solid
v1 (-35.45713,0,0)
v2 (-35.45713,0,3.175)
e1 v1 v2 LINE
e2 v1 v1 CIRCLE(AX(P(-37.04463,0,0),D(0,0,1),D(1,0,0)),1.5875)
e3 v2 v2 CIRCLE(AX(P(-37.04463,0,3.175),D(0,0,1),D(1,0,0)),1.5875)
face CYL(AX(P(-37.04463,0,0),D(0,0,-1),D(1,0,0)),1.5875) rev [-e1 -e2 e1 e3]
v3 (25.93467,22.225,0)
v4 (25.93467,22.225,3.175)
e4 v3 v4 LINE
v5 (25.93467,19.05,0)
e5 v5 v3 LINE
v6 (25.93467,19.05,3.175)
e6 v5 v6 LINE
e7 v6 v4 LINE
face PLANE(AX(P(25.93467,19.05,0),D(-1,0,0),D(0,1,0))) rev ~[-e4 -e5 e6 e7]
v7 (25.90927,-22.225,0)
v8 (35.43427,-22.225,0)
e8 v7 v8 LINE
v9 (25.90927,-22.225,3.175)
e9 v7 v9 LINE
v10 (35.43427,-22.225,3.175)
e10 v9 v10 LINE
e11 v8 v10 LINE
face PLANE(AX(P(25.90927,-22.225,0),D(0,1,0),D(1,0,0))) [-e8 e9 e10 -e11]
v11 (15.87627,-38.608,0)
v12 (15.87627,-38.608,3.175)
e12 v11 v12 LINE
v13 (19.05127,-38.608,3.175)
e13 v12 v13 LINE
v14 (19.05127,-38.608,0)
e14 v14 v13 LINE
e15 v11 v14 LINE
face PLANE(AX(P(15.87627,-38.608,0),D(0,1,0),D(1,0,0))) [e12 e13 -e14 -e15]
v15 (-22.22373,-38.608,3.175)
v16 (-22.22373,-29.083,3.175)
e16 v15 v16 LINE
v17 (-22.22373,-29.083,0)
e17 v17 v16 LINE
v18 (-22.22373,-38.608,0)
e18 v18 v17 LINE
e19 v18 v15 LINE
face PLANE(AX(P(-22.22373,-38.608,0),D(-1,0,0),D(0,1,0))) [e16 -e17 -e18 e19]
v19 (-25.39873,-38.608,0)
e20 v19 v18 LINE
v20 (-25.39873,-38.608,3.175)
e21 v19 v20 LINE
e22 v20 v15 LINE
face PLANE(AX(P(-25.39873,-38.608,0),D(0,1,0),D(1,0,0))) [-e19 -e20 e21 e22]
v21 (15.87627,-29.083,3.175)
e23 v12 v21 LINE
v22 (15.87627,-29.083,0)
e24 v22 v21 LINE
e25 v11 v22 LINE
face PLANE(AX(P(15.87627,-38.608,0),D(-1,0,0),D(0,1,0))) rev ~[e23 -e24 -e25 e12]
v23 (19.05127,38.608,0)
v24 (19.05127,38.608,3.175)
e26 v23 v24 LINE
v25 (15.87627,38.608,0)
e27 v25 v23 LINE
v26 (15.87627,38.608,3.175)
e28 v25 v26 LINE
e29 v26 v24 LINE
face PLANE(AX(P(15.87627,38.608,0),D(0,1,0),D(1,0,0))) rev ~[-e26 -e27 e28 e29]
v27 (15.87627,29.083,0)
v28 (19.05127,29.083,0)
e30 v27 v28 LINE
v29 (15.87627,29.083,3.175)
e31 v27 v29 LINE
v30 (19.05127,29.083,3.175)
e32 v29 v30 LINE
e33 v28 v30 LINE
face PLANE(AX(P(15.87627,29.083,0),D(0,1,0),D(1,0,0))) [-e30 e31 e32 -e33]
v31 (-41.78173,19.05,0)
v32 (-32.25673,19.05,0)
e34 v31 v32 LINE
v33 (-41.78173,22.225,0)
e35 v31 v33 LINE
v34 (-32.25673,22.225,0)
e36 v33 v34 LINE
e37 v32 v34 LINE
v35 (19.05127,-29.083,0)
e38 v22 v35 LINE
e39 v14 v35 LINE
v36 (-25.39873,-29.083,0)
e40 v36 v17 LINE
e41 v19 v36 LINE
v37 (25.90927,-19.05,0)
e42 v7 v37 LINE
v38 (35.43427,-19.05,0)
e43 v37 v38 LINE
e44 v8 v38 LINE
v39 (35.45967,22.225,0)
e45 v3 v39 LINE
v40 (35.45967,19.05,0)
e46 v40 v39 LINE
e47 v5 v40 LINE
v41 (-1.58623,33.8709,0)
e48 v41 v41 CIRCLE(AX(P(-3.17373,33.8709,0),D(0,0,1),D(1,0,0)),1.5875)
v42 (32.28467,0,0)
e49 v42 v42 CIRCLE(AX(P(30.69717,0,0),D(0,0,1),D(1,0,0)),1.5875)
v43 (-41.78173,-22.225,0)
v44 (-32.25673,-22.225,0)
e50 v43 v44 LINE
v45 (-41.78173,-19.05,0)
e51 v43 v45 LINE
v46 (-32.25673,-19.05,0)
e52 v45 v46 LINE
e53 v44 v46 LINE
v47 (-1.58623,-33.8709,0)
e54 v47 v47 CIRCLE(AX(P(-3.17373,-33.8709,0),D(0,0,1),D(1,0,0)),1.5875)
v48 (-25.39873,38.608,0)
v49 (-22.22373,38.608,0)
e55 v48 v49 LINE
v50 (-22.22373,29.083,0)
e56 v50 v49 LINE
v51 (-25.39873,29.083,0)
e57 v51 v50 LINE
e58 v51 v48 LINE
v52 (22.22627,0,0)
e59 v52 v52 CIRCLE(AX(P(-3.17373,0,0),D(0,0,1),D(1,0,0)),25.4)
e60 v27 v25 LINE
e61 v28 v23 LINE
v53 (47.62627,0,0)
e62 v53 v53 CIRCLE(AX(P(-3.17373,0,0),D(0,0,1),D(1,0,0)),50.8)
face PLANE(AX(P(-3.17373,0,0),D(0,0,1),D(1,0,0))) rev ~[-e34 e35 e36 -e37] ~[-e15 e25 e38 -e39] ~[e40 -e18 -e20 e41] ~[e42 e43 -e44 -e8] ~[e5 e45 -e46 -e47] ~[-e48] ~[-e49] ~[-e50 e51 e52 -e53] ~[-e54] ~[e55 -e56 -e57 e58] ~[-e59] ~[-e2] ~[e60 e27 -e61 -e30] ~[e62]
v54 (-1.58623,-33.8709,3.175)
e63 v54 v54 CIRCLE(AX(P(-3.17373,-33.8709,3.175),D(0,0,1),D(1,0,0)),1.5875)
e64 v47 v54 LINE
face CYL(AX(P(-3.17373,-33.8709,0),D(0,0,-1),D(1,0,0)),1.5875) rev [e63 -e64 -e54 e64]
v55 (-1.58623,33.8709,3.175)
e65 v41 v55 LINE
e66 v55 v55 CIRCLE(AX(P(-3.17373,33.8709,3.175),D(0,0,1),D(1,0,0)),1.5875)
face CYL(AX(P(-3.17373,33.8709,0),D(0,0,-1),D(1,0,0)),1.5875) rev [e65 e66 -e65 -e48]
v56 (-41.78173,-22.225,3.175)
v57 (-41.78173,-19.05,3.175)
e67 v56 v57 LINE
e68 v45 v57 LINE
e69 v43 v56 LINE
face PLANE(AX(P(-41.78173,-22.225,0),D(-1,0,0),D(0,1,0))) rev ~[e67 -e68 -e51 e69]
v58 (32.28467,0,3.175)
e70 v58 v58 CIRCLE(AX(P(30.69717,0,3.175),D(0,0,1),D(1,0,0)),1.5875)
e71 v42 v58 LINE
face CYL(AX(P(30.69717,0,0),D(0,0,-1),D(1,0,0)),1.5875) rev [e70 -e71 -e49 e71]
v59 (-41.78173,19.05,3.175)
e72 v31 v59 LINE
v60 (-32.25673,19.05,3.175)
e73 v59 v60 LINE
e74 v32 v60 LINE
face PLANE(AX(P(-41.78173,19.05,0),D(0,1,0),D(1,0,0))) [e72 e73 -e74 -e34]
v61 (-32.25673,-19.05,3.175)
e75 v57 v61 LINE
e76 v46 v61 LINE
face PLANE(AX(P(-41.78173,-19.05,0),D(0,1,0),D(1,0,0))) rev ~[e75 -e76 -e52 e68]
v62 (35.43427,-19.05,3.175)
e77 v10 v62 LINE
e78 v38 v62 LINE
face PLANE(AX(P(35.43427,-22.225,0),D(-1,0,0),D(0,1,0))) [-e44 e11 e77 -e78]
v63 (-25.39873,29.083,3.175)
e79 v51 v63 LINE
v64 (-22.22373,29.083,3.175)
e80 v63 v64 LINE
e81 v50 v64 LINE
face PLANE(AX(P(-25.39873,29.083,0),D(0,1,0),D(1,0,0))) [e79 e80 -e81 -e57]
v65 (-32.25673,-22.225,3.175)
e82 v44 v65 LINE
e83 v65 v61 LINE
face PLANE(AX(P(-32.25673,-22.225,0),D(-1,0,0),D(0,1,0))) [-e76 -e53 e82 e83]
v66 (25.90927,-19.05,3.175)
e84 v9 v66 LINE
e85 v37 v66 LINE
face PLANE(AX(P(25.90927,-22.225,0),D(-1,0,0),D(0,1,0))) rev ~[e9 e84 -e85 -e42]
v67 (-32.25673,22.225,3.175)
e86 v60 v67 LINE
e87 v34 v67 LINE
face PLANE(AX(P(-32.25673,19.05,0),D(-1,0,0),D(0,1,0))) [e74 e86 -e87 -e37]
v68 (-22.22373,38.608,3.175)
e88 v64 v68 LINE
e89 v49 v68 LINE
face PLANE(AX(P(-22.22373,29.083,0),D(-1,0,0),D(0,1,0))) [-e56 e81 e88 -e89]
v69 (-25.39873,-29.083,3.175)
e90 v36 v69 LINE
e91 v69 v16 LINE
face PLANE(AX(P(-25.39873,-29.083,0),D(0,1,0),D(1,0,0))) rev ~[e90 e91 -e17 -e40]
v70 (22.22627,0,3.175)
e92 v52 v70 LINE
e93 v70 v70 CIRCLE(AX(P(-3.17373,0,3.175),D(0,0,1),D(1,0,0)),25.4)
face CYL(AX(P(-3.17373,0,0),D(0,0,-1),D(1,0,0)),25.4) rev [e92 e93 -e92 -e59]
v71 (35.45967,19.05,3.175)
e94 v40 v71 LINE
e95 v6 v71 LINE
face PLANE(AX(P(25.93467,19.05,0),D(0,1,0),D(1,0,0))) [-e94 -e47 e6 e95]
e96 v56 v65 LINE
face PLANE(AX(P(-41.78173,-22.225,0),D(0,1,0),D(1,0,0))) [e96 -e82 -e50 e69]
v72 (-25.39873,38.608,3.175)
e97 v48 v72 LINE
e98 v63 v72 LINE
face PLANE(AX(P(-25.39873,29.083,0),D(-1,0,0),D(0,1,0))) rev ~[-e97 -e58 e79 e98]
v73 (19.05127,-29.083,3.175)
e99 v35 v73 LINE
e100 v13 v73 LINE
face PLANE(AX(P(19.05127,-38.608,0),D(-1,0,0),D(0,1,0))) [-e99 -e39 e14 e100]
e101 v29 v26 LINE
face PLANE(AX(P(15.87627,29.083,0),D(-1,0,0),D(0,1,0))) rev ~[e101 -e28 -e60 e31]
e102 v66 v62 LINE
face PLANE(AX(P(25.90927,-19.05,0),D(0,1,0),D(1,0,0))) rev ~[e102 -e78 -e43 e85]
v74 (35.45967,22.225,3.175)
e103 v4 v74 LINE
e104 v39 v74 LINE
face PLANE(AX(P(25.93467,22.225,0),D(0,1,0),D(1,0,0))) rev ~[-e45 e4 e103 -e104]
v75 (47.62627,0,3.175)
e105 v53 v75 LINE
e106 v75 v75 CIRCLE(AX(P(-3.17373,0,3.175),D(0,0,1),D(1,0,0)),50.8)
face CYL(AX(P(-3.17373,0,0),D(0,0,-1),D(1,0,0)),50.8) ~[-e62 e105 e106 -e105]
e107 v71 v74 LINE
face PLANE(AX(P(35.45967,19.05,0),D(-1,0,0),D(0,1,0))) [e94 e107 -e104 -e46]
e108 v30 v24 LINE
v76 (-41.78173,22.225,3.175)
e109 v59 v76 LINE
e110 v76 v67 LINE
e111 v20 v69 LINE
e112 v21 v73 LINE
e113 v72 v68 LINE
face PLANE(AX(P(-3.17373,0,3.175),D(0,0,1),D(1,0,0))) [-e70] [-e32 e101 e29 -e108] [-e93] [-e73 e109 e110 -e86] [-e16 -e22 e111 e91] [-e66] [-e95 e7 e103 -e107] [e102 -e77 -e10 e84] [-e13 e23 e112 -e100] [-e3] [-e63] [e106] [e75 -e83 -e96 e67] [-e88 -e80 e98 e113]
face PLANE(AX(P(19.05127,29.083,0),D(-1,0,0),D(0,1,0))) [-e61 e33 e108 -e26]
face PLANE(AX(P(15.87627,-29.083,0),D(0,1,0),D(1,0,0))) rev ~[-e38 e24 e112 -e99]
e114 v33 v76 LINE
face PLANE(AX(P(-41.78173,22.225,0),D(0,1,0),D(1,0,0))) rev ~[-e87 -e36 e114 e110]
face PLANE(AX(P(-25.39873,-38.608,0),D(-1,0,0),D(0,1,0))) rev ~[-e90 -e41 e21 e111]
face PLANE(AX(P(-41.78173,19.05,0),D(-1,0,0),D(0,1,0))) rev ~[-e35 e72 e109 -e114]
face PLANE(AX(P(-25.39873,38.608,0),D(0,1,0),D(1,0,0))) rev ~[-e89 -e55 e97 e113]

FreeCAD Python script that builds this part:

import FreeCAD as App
import Part
import Sketcher
Q = App.Units.Quantity

doc = App.newDocument("Part")
body = doc.addObject("PartDesign::Body", "Body")

sketch1 = doc.addObject("Sketcher::SketchObject", "Sketch")
body.addObject(sketch1)
sketch1.AttachmentSupport = (doc.XY_Plane, [""])
sketch1.MapMode = "FlatFace"
sketch1.addGeometry(Part.Circle(App.Vector(-3.2, 0, 0), App.Vector(0, 0, 1), 50.8), False)
sketch1.addGeometry(Part.LineSegment(App.Vector(-22.2, -38.6, 0), App.Vector(-25.4, -38.6, 0)), False)
sketch1.addGeometry(Part.LineSegment(App.Vector(-25.4, -38.6, 0), App.Vector(-25.4, -29.1, 0)), False)
sketch1.addGeometry(Part.LineSegment(App.Vector(-25.4, -29.1, 0), App.Vector(-22.2, -29.1, 0)), False)
sketch1.addGeometry(Part.LineSegment(App.Vector(-22.2, -29.1, 0), App.Vector(-22.2, -38.6, 0)), False)
sketch1.addGeometry(Part.LineSegment(App.Vector(-32.3, -22.2, 0), App.Vector(-41.8, -22.2, 0)), False)
sketch1.addGeometry(Part.LineSegment(App.Vector(-41.8, -22.2, 0), App.Vector(-41.8, -19.1, 0)), False)
sketch1.addGeometry(Part.LineSegment(App.Vector(-41.8, -19.1, 0), App.Vector(-32.3, -19.1, 0)), False)
sketch1.addGeometry(Part.LineSegment(App.Vector(-32.3, -19.1, 0), App.Vector(-32.3, -22.2, 0)), False)
sketch1.addGeometry(Part.Circle(App.Vector(-3.2, -33.9, 0), App.Vector(0, 0, 1), 1.6), False)
sketch1.addGeometry(Part.LineSegment(App.Vector(19.1, -38.6, 0), App.Vector(15.9, -38.6, 0)), False)
sketch1.addGeometry(Part.LineSegment(App.Vector(15.9, -38.6, 0), App.Vector(15.9, -29.1, 0)), False)
sketch1.addGeometry(Part.LineSegment(App.Vector(15.9, -29.1, 0), App.Vector(19.1, -29.1, 0)), False)
sketch1.addGeometry(Part.LineSegment(App.Vector(19.1, -29.1, 0), App.Vector(19.1, -38.6, 0)), False)
sketch1.addGeometry(Part.LineSegment(App.Vector(35.4, -22.2, 0), App.Vector(25.9, -22.2, 0)), False)
sketch1.addGeometry(Part.LineSegment(App.Vector(25.9, -22.2, 0), App.Vector(25.9, -19.1, 0)), False)
sketch1.addGeometry(Part.LineSegment(App.Vector(25.9, -19.1, 0), App.Vector(35.4, -19.1, 0)), False)
sketch1.addGeometry(Part.LineSegment(App.Vector(35.4, -19.1, 0), App.Vector(35.4, -22.2, 0)), False)
sketch1.addGeometry(Part.Circle(App.Vector(-37, 0, 0), App.Vector(0, 0, 1), 1.6), False)
sketch1.addGeometry(Part.Circle(App.Vector(-3.2, 0, 0), App.Vector(0, 0, 1), 25.4), False)
sketch1.addGeometry(Part.LineSegment(App.Vector(-32.3, 19.1, 0), App.Vector(-41.8, 19.1, 0)), False)
sketch1.addGeometry(Part.LineSegment(App.Vector(-41.8, 19.1, 0), App.Vector(-41.8, 22.2, 0)), False)
sketch1.addGeometry(Part.LineSegment(App.Vector(-41.8, 22.2, 0), App.Vector(-32.3, 22.2, 0)), False)
sketch1.addGeometry(Part.LineSegment(App.Vector(-32.3, 22.2, 0), App.Vector(-32.3, 19.1, 0)), False)
sketch1.addGeometry(Part.LineSegment(App.Vector(-22.2, 29.1, 0), App.Vector(-25.4, 29.1, 0)), False)
sketch1.addGeometry(Part.LineSegment(App.Vector(-25.4, 29.1, 0), App.Vector(-25.4, 38.6, 0)), False)
sketch1.addGeometry(Part.LineSegment(App.Vector(-25.4, 38.6, 0), App.Vector(-22.2, 38.6, 0)), False)
sketch1.addGeometry(Part.LineSegment(App.Vector(-22.2, 38.6, 0), App.Vector(-22.2, 29.1, 0)), False)
sketch1.addGeometry(Part.Circle(App.Vector(-3.2, 33.9, 0), App.Vector(0, 0, 1), 1.6), False)
sketch1.addGeometry(Part.Circle(App.Vector(30.7, 0, 0), App.Vector(0, 0, 1), 1.6), False)
sketch1.addGeometry(Part.LineSegment(App.Vector(35.5, 19.1, 0), App.Vector(25.9, 19.1, 0)), False)
sketch1.addGeometry(Part.LineSegment(App.Vector(25.9, 19.1, 0), App.Vector(25.9, 22.2, 0)), False)
sketch1.addGeometry(Part.LineSegment(App.Vector(25.9, 22.2, 0), App.Vector(35.5, 22.2, 0)), False)
sketch1.addGeometry(Part.LineSegment(App.Vector(35.5, 22.2, 0), App.Vector(35.5, 19.1, 0)), False)
sketch1.addGeometry(Part.LineSegment(App.Vector(19.1, 29.1, 0), App.Vector(15.9, 29.1, 0)), False)
sketch1.addGeometry(Part.LineSegment(App.Vector(15.9, 29.1, 0), App.Vector(15.9, 38.6, 0)), False)
sketch1.addGeometry(Part.LineSegment(App.Vector(15.9, 38.6, 0), App.Vector(19.1, 38.6, 0)), False)
sketch1.addGeometry(Part.LineSegment(App.Vector(19.1, 38.6, 0), App.Vector(19.1, 29.1, 0)), False)
sketch1.addConstraint(Sketcher.Constraint("Coincident", 1, 2, 2, 1))
sketch1.addConstraint(Sketcher.Constraint("Coincident", 2, 2, 3, 1))
sketch1.addConstraint(Sketcher.Constraint("Coincident", 3, 2, 4, 1))
sketch1.addConstraint(Sketcher.Constraint("Coincident", 4, 2, 1, 1))
sketch1.addConstraint(Sketcher.Constraint("Coincident", 5, 2, 6, 1))
sketch1.addConstraint(Sketcher.Constraint("Coincident", 6, 2, 7, 1))
sketch1.addConstraint(Sketcher.Constraint("Coincident", 7, 2, 8, 1))
sketch1.addConstraint(Sketcher.Constraint("Coincident", 8, 2, 5, 1))
sketch1.addConstraint(Sketcher.Constraint("Coincident", 10, 2, 11, 1))
sketch1.addConstraint(Sketcher.Constraint("Coincident", 11, 2, 12, 1))
sketch1.addConstraint(Sketcher.Constraint("Coincident", 12, 2, 13, 1))
sketch1.addConstraint(Sketcher.Constraint("Coincident", 13, 2, 10, 1))
sketch1.addConstraint(Sketcher.Constraint("Coincident", 14, 2, 15, 1))
sketch1.addConstraint(Sketcher.Constraint("Coincident", 15, 2, 16, 1))
sketch1.addConstraint(Sketcher.Constraint("Coincident", 16, 2, 17, 1))
sketch1.addConstraint(Sketcher.Constraint("Coincident", 17, 2, 14, 1))
sketch1.addConstraint(Sketcher.Constraint("Coincident", 20, 2, 21, 1))
sketch1.addConstraint(Sketcher.Constraint("Coincident", 21, 2, 22, 1))
sketch1.addConstraint(Sketcher.Constraint("Coincident", 22, 2, 23, 1))
sketch1.addConstraint(Sketcher.Constraint("Coincident", 23, 2, 20, 1))
sketch1.addConstraint(Sketcher.Constraint("Coincident", 24, 2, 25, 1))
sketch1.addConstraint(Sketcher.Constraint("Coincident", 25, 2, 26, 1))
sketch1.addConstraint(Sketcher.Constraint("Coincident", 26, 2, 27, 1))
sketch1.addConstraint(Sketcher.Constraint("Coincident", 27, 2, 24, 1))
sketch1.addConstraint(Sketcher.Constraint("Coincident", 30, 2, 31, 1))
sketch1.addConstraint(Sketcher.Constraint("Coincident", 31, 2, 32, 1))
sketch1.addConstraint(Sketcher.Constraint("Coincident", 32, 2, 33, 1))
sketch1.addConstraint(Sketcher.Constraint("Coincident", 33, 2, 30, 1))
sketch1.addConstraint(Sketcher.Constraint("Coincident", 34, 2, 35, 1))
sketch1.addConstraint(Sketcher.Constraint("Coincident", 35, 2, 36, 1))
sketch1.addConstraint(Sketcher.Constraint("Coincident", 36, 2, 37, 1))
sketch1.addConstraint(Sketcher.Constraint("Coincident", 37, 2, 34, 1))
sketch1.addConstraint(Sketcher.Constraint("Horizontal", 1))
sketch1.addConstraint(Sketcher.Constraint("Vertical", 2))
sketch1.addConstraint(Sketcher.Constraint("Horizontal", 3))
sketch1.addConstraint(Sketcher.Constraint("Vertical", 4))
sketch1.addConstraint(Sketcher.Constraint("Horizontal", 5))
sketch1.addConstraint(Sketcher.Constraint("Vertical", 6))
sketch1.addConstraint(Sketcher.Constraint("Horizontal", 7))
sketch1.addConstraint(Sketcher.Constraint("Vertical", 8))
sketch1.addConstraint(Sketcher.Constraint("Horizontal", 10))
sketch1.addConstraint(Sketcher.Constraint("Vertical", 11))
sketch1.addConstraint(Sketcher.Constraint("Horizontal", 12))
sketch1.addConstraint(Sketcher.Constraint("Vertical", 13))
sketch1.addConstraint(Sketcher.Constraint("Horizontal", 14))
sketch1.addConstraint(Sketcher.Constraint("Vertical", 15))
sketch1.addConstraint(Sketcher.Constraint("Horizontal", 16))
sketch1.addConstraint(Sketcher.Constraint("Vertical", 17))
sketch1.addConstraint(Sketcher.Constraint("Horizontal", 20))
sketch1.addConstraint(Sketcher.Constraint("Vertical", 21))
sketch1.addConstraint(Sketcher.Constraint("Horizontal", 22))
sketch1.addConstraint(Sketcher.Constraint("Vertical", 23))
sketch1.addConstraint(Sketcher.Constraint("Horizontal", 24))
sketch1.addConstraint(Sketcher.Constraint("Vertical", 25))
sketch1.addConstraint(Sketcher.Constraint("Horizontal", 26))
sketch1.addConstraint(Sketcher.Constraint("Vertical", 27))
sketch1.addConstraint(Sketcher.Constraint("Horizontal", 30))
sketch1.addConstraint(Sketcher.Constraint("Vertical", 31))
sketch1.addConstraint(Sketcher.Constraint("Horizontal", 32))
sketch1.addConstraint(Sketcher.Constraint("Vertical", 33))
sketch1.addConstraint(Sketcher.Constraint("Horizontal", 34))
sketch1.addConstraint(Sketcher.Constraint("Vertical", 35))
sketch1.addConstraint(Sketcher.Constraint("Horizontal", 36))
sketch1.addConstraint(Sketcher.Constraint("Vertical", 37))
sketch1.addConstraint(Sketcher.Constraint("Coincident", 19, 3, 0, 3))
sketch1.addConstraint(Sketcher.Constraint("Equal", 9, 18))
sketch1.addConstraint(Sketcher.Constraint("Equal", 18, 28))
sketch1.addConstraint(Sketcher.Constraint("Equal", 28, 29))
sketch1.addConstraint(Sketcher.Constraint("Symmetric", 9, 3, 28, 3, -1))
sketch1.addConstraint(Sketcher.Constraint("Symmetric", 6, 2, 20, 2, -1))
sketch1.addConstraint(Sketcher.Constraint("Symmetric", 8, 2, 22, 2, -1))
sketch1.addConstraint(Sketcher.Constraint("Symmetric", 2, 2, 24, 2, -1))
sketch1.addConstraint(Sketcher.Constraint("Symmetric", 4, 2, 26, 2, -1))
sketch1.addConstraint(Sketcher.Constraint("Symmetric", 11, 2, 34, 2, -1))
sketch1.addConstraint(Sketcher.Constraint("Symmetric", 13, 2, 36, 2, -1))
sketch1.addConstraint(Sketcher.Constraint("PointOnObject", 0, 3, -1))
sketch1.addConstraint(Sketcher.Constraint("PointOnObject", 18, 3, -1))
sketch1.addConstraint(Sketcher.Constraint("PointOnObject", 29, 3, -1))
sketch1.addConstraint(Sketcher.Constraint("Horizontal", 4, 2, 10, 2))
sketch1.addConstraint(Sketcher.Constraint("Horizontal", 3, 2, 11, 2))
sketch1.addConstraint(Sketcher.Constraint("Horizontal", 8, 2, 14, 2))
sketch1.addConstraint(Sketcher.Constraint("Horizontal", 7, 2, 15, 2))
sketch1.addConstraint(Sketcher.Constraint("Horizontal", 23, 2, 30, 2))
sketch1.addConstraint(Sketcher.Constraint("Horizontal", 22, 2, 31, 2))
sketch1.addConstraint(Sketcher.Constraint("Vertical", 0, 3, 9, 3))
sketch1.addConstraint(Sketcher.Constraint("Equal", 3, 10))
sketch1.addConstraint(Sketcher.Constraint("Equal", 7, 14))
sketch1.addConstraint(Sketcher.Constraint("Equal", 22, 30))
sketch1.addConstraint(Sketcher.Constraint("Equal", 32, 2))
sketch1.addConstraint(Sketcher.Constraint("Equal", 36, 6))
sketch1.addConstraint(Sketcher.Constraint("Diameter", 0, Q("4 in")))
sketch1.addConstraint(Sketcher.Constraint("Diameter", 19, Q("2 in")))
sketch1.addConstraint(Sketcher.Constraint("Diameter", 9, Q("0.125 in")))
sketch1.addConstraint(Sketcher.Constraint("DistanceX", 4, 2, 10, 2, Q("1.5 in")))
sketch1.addConstraint(Sketcher.Constraint("DistanceY", 6, 2, 20, 2, Q("1.5 in")))
sketch1.addConstraint(Sketcher.Constraint("DistanceX", 1, 2, 1, 1, Q("0.125 in")))
sketch1.addConstraint(Sketcher.Constraint("DistanceX", 5, 2, 5, 1, Q("0.375 in")))
sketch1.addConstraint(Sketcher.Constraint("DistanceY", 1, 2, -1, 1, Q("1.52 in")))
sketch1.addConstraint(Sketcher.Constraint("DistanceX", 3, 2, 9, 3, Q("0.75 in")))
sketch1.addConstraint(Sketcher.Constraint("DistanceX", 5, 2, 3, 2, Q("0.77 in")))
sketch1.addConstraint(Sketcher.Constraint("DistanceX", 12, 2, 14, 2, Q("0.27 in")))
sketch1.addConstraint(Sketcher.Constraint("DistanceY", 9, 3, 28, 3, Q("2.667 in")))
sketch1.addConstraint(Sketcher.Constraint("DistanceX", 18, 3, 29, 3, Q("2.667 in")))
sketch1.addConstraint(Sketcher.Constraint("DistanceX", 30, 2, 29, 3, Q("0.1875 in")))
sketch1.addConstraint(Sketcher.Constraint("DistanceX", 28, 3, 30, 2, Q("1.146 in")))
sketch1.addConstraint(Sketcher.Constraint("DistanceX", 0, 3, -1, 1, 3.17373))
pad1 = doc.addObject("PartDesign::Pad", "Pad")
body.addObject(pad1)
pad1.Profile = sketch1
pad1.Length = Q("0.125 in")

doc.recompute()
